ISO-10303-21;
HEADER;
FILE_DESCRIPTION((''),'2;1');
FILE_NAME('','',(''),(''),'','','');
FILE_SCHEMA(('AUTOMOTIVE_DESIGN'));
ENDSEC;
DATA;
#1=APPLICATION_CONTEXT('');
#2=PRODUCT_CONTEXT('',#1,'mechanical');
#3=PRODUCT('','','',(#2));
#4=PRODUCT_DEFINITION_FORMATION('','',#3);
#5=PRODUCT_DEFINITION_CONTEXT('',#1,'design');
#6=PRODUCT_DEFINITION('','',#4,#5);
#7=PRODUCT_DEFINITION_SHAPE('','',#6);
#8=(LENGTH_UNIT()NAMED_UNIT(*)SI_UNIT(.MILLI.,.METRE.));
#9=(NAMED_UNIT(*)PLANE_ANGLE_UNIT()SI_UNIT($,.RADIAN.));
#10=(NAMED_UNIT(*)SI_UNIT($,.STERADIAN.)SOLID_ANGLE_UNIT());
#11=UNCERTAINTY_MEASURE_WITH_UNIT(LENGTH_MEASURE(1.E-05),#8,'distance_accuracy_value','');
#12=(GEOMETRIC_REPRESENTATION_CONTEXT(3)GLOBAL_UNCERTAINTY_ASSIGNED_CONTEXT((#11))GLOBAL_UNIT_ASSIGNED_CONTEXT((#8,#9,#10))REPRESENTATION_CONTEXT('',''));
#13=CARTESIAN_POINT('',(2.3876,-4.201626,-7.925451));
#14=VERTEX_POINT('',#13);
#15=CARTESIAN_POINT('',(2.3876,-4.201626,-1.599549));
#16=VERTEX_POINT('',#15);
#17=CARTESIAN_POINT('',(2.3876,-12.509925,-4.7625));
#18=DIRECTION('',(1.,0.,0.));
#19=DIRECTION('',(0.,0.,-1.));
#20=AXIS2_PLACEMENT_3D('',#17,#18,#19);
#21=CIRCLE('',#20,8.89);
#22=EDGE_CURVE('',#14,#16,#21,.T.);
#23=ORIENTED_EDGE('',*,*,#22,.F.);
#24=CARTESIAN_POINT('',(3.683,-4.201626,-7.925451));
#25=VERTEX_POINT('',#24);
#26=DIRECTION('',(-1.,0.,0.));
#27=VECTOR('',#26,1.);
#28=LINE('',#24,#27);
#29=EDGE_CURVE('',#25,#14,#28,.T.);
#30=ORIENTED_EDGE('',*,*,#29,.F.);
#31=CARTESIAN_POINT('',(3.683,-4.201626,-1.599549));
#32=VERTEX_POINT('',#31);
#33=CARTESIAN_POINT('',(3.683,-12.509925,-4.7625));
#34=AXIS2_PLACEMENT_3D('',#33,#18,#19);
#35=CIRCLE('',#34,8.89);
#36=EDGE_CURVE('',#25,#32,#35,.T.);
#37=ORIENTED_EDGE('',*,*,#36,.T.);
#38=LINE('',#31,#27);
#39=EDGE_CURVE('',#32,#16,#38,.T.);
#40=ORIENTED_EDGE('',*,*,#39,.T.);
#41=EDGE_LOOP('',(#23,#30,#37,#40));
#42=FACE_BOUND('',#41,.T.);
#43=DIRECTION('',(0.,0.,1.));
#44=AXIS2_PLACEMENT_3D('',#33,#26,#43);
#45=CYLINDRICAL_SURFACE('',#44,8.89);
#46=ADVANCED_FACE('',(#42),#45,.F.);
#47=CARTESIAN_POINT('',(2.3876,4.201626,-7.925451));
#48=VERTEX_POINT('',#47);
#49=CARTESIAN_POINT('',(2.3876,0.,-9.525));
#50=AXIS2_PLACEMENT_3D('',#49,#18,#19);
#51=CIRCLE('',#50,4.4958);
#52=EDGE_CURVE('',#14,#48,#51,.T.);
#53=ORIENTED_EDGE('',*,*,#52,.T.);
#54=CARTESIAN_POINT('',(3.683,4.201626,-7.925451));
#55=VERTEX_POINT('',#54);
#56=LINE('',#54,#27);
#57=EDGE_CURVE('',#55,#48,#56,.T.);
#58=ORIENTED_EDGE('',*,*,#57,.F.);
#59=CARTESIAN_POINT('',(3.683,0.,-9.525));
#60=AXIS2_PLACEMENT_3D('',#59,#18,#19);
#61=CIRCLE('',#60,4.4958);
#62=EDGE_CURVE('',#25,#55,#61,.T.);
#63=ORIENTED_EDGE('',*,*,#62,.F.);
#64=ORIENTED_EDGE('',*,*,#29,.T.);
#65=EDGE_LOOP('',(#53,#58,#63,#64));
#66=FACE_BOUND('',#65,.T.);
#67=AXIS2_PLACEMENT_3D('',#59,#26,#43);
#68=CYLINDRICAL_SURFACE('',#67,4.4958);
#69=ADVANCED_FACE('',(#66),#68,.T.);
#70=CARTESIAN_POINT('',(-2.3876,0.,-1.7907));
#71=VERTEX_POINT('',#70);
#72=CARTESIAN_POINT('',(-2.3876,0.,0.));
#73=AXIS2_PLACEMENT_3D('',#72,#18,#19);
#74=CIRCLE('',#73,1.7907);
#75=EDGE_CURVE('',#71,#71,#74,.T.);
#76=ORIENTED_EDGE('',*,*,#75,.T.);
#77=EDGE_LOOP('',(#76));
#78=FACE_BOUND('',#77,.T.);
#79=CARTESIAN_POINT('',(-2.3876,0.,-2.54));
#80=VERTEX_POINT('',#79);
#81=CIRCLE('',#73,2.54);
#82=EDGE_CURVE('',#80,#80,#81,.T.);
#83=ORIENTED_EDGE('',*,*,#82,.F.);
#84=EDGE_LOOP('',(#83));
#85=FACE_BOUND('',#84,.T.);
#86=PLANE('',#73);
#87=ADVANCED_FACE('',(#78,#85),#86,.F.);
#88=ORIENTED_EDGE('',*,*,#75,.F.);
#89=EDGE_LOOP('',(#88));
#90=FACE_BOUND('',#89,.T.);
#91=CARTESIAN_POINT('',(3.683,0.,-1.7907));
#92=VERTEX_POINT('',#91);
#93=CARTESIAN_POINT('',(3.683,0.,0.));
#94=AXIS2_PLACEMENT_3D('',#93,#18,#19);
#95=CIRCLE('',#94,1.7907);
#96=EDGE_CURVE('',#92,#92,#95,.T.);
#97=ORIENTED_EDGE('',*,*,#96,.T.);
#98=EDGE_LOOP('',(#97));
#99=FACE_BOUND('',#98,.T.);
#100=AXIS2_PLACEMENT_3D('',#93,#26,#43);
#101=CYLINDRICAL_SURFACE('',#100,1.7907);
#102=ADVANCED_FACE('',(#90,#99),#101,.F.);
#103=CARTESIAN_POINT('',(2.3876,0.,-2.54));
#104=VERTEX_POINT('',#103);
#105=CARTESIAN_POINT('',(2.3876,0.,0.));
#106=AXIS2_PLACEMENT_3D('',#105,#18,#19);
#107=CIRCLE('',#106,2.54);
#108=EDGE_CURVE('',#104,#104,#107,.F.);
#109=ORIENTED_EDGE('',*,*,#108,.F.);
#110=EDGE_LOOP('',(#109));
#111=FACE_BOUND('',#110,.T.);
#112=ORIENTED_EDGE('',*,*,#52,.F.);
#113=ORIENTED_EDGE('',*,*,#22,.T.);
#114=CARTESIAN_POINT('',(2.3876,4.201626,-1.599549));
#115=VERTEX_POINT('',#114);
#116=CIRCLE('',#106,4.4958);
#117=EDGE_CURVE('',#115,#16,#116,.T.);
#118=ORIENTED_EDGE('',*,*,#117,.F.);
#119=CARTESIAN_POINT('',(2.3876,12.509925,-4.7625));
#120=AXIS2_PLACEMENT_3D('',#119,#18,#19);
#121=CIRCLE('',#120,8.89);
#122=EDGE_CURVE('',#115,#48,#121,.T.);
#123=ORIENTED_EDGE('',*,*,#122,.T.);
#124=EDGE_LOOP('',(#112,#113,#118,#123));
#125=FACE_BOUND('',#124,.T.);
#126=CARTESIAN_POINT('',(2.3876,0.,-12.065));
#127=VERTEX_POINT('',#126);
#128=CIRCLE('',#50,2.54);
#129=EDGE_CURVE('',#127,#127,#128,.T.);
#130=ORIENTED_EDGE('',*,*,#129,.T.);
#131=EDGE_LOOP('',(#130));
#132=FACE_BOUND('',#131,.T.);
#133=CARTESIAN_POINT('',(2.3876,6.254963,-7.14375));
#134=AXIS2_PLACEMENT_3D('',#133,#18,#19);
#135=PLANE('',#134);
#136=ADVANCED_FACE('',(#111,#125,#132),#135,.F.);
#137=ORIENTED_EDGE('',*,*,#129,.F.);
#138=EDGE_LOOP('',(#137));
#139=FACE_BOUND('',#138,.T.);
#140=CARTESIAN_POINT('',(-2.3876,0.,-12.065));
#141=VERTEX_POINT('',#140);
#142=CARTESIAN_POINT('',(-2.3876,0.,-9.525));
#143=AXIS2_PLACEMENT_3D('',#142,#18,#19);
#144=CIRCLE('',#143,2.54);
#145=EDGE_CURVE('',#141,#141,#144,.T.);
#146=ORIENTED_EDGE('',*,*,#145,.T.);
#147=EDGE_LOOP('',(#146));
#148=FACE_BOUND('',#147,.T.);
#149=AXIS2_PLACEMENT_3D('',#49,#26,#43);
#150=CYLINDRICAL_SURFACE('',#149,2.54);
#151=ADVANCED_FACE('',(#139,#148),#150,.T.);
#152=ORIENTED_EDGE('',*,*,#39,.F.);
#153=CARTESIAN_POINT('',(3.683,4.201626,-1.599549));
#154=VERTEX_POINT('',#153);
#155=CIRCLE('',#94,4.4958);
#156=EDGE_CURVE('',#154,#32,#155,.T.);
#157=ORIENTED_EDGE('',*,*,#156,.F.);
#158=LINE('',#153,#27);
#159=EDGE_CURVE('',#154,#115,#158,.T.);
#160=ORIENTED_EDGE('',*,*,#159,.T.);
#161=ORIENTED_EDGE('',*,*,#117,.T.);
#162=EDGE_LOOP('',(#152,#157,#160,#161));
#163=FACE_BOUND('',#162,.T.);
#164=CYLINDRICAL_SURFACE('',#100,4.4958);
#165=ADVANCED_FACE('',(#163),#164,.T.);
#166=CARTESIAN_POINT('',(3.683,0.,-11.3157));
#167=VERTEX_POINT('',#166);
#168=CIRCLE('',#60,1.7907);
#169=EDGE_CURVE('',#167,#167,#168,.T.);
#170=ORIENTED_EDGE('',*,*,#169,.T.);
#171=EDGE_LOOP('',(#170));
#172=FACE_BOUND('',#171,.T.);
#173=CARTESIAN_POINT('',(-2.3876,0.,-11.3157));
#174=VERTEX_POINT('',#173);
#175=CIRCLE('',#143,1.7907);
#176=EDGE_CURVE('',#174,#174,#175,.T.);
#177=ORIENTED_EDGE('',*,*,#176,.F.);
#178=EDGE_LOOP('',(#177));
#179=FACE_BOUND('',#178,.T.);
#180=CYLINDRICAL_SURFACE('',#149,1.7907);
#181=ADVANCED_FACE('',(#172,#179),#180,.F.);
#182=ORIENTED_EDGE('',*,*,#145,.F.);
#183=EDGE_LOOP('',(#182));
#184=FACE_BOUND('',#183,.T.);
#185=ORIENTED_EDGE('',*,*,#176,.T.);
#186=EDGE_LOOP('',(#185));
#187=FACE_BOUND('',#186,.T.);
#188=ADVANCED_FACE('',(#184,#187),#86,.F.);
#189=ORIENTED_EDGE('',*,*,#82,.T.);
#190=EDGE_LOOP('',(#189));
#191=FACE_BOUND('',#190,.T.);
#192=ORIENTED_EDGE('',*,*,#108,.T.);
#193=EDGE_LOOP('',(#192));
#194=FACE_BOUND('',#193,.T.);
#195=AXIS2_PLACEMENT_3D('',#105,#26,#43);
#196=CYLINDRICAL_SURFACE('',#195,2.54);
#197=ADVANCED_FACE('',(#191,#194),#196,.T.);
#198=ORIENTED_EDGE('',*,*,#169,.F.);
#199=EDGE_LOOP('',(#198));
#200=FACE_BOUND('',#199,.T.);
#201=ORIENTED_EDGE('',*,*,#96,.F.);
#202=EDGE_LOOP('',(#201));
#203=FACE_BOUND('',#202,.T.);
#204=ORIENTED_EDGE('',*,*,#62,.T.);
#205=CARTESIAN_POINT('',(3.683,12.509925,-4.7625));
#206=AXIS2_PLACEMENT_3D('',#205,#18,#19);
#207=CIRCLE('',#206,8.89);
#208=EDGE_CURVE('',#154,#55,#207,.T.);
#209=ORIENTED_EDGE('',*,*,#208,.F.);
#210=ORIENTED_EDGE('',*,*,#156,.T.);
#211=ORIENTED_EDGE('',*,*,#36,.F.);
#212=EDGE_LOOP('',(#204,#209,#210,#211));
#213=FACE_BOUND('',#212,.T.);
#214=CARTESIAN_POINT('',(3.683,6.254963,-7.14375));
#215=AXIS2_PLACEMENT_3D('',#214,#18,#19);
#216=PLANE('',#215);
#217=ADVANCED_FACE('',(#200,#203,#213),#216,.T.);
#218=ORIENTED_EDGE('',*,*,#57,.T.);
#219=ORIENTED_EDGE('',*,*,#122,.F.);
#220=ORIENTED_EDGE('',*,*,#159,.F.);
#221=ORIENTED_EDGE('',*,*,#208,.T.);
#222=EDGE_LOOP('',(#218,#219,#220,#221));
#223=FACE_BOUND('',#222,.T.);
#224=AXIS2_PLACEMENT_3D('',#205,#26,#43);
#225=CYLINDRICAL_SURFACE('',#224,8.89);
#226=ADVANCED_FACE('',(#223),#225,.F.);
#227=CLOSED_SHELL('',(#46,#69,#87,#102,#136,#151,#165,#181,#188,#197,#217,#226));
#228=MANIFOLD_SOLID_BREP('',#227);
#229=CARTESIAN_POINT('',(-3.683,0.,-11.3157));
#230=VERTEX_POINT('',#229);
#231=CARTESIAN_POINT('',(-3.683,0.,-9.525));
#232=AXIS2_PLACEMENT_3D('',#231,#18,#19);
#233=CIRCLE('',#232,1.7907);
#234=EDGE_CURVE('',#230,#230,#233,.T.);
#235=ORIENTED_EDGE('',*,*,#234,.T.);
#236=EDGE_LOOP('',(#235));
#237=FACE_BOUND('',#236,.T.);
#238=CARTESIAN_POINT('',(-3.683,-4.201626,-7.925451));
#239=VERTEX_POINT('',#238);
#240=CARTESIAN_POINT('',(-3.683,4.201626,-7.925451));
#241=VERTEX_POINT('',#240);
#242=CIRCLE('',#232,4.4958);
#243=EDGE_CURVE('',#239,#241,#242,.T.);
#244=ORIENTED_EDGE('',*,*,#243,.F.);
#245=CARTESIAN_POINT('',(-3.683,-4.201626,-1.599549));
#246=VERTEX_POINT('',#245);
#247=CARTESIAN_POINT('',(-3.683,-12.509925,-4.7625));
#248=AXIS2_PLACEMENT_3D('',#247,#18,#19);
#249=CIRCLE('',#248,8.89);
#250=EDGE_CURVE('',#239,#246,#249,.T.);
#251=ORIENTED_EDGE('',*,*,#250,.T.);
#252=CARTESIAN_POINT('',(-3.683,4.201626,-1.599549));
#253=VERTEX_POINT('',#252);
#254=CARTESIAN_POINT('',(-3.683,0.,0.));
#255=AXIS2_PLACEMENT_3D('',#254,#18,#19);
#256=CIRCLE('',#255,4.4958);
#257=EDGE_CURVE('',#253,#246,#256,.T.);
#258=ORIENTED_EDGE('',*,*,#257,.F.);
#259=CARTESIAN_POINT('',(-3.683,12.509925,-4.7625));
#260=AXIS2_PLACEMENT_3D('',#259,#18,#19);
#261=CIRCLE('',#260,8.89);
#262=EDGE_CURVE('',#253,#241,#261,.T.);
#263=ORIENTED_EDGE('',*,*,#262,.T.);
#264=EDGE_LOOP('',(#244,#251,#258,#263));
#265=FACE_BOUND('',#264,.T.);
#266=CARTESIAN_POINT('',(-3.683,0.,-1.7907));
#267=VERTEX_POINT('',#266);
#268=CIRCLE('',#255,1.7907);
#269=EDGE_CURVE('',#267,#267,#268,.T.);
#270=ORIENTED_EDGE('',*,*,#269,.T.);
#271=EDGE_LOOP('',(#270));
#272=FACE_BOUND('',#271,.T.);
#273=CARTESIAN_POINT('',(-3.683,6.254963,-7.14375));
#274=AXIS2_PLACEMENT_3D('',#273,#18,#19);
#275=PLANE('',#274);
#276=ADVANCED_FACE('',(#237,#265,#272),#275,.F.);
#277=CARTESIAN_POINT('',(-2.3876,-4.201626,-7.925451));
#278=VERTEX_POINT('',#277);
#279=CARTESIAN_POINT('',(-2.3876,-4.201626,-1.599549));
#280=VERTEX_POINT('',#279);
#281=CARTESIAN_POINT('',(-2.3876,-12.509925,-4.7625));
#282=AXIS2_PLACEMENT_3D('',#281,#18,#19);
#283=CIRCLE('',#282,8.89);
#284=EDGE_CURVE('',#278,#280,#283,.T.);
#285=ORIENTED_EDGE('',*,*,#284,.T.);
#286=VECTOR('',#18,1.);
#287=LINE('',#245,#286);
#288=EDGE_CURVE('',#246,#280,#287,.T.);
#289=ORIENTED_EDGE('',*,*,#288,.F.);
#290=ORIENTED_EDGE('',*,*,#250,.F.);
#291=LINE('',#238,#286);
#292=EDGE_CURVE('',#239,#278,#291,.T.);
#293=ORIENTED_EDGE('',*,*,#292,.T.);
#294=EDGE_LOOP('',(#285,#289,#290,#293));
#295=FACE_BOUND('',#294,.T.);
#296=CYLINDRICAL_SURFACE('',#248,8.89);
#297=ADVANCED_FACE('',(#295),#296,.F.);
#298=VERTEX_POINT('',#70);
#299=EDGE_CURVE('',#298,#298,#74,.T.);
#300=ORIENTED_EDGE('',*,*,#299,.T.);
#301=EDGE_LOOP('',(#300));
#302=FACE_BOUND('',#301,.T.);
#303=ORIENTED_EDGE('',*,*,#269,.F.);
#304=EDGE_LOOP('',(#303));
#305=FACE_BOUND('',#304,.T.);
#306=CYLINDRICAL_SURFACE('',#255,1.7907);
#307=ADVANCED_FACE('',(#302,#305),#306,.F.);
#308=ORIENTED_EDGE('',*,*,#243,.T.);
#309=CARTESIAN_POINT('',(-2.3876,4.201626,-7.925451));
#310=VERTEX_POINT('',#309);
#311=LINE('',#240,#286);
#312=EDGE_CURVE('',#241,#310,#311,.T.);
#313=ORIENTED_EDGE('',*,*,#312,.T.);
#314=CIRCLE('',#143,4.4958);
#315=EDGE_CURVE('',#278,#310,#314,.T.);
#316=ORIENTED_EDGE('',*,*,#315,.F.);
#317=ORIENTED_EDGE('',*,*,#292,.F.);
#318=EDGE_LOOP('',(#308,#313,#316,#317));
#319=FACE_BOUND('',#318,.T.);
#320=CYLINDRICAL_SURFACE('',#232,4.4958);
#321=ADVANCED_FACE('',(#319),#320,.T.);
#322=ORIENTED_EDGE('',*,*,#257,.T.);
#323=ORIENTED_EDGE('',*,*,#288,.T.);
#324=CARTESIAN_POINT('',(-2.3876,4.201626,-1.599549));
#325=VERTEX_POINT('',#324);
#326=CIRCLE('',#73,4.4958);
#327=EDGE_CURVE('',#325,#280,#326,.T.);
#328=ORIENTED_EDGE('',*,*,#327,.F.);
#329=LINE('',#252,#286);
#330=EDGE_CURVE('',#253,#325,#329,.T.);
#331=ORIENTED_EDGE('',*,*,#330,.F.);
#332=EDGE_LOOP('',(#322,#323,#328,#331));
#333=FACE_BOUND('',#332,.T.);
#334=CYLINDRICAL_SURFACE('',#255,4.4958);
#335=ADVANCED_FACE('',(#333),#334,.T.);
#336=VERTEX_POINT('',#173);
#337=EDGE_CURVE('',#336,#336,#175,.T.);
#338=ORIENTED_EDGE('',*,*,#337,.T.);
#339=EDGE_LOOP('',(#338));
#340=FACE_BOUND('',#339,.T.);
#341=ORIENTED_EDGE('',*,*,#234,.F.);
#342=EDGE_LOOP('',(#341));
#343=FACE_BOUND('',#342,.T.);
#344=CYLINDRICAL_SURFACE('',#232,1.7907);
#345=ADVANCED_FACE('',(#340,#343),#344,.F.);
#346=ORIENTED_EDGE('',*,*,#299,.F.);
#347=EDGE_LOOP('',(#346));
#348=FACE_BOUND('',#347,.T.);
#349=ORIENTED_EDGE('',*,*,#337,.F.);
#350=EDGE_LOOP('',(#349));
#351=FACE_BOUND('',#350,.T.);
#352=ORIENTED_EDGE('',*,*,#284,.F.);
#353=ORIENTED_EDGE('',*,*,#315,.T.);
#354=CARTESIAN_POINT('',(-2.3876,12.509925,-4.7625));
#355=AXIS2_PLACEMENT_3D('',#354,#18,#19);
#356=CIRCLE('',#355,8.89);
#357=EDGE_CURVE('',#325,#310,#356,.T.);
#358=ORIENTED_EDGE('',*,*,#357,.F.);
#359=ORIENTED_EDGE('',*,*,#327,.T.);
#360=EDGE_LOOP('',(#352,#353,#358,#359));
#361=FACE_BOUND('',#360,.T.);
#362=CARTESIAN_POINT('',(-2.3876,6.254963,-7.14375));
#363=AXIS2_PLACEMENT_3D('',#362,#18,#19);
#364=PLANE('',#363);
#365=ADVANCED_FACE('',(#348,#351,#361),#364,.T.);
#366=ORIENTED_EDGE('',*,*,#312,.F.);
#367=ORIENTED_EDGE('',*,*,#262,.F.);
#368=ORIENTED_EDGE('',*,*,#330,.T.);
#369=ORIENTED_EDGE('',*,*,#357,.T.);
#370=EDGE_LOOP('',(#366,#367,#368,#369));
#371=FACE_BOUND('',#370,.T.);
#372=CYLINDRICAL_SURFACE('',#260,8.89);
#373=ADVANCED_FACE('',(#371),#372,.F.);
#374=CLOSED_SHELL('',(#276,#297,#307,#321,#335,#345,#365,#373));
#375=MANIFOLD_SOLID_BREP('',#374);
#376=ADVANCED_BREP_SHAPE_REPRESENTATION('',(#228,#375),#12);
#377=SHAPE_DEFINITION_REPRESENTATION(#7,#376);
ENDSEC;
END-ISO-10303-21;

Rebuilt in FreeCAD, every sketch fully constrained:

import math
import FreeCAD as App
import Part
import Sketcher

V = App.Vector
Q = App.Units.Quantity

doc = App.newDocument("Part")
params = doc.addObject("Spreadsheet::Sheet", "Params")
for row, (alias, value) in enumerate([
    ("sketch1_diameter", "0.2 in"),
    ("sketch1_diameter2", "0.141 in"),
    ("pad1_length", "0.188 in"),
    ("sketch2_diameter", "0.2 in"),
    ("sketch2_diameter2", "0.141 in"),
    ("pad2_length", "0.188 in"),
    ("sketch3_radius", "0.35 in"),
    ("sketch3_diameter", "0.141 in"),
    ("sketch3_radius2", "0.177 in"),
    ("pad3_length", "0.051 in"),
    ("sketch4_radius", "0.35 in"),
    ("sketch4_diameter", "0.141 in"),
    ("sketch4_radius2", "0.177 in"),
    ("pad4_length", "0.051 in"),
], start=1):
    params.set(f"A{row}", alias)
    params.set(f"B{row}", "=" + value)
    params.setAlias(f"B{row}", alias)

body = doc.addObject("PartDesign::Body", "Body")

# Sketch on YZ plane
sketch1 = doc.addObject("Sketcher::SketchObject", "Sketch")
body.addObject(sketch1)
sketch1.AttachmentSupport = (doc.YZ_Plane, [""])
sketch1.MapMode = "FlatFace"
sketch1.addGeometry([
    Part.Circle(V(0, 0, 0), V(0, 0, 1), 2.54),
    Part.Circle(V(0, 0, 0), V(0, 0, 1), 1.7907),
], False)
sketch1.addConstraint([
    Sketcher.Constraint("Coincident", 0, 3, -1, 1),
    Sketcher.Constraint("Coincident", 1, 3, -1, 1),
    Sketcher.Constraint("Diameter", 0, Q("0.2 in")),
    Sketcher.Constraint("Diameter", 1, Q("0.141 in")),
])
sketch1.setExpression("Constraints[2]", "Params.sketch1_diameter")
sketch1.setExpression("Constraints[3]", "Params.sketch1_diameter2")
pad1 = doc.addObject("PartDesign::Pad", "Pad")
body.addObject(pad1)
pad1.Profile = sketch1
pad1.setExpression("Length", "Params.pad1_length")
pad1.Midplane = True
body2 = doc.addObject("PartDesign::Body", "Body001")

# Sketch on YZ plane
sketch2 = doc.addObject("Sketcher::SketchObject", "Sketch001")
body2.addObject(sketch2)
sketch2.AttachmentSupport = (doc.getObject("YZ_Plane001"), [""])
sketch2.MapMode = "FlatFace"
sketch2.addGeometry([
    Part.Circle(V(0, -9.525, 0), V(0, 0, 1), 2.54),
    Part.Circle(V(0, -9.525, 0), V(0, 0, 1), 1.7907),
], False)
sketch2.addConstraint([
    Sketcher.Constraint("Coincident", 1, 3, 0, 3),
    Sketcher.Constraint("PointOnObject", 0, 3, -2),
    Sketcher.Constraint("Diameter", 0, Q("0.2 in")),
    Sketcher.Constraint("Diameter", 1, Q("0.141 in")),
    Sketcher.Constraint("DistanceY", 0, 3, -1, 1, Q("0.375 in")),
])
sketch2.setExpression("Constraints[2]", "Params.sketch2_diameter")
sketch2.setExpression("Constraints[3]", "Params.sketch2_diameter2")
pad2 = doc.addObject("PartDesign::Pad", "Pad001")
body2.addObject(pad2)
pad2.Profile = sketch2
pad2.setExpression("Length", "Params.pad2_length")
pad2.Midplane = True
body.AllowCompound = True
doc.recompute()

boolean = doc.addObject("PartDesign::Boolean", "Boolean")
body.addObject(boolean)
boolean.Type = "Fuse"
boolean.addObjects([body2])

# Sketch on YZ plane
sketch3 = doc.addObject("Sketcher::SketchObject", "Sketch002")
body.addObject(sketch3)
sketch3.AttachmentSupport = (doc.YZ_Plane, [""])
sketch3.MapMode = "FlatFace"
sketch3.AttachmentOffset = App.Placement(V(0, 0, 0.094 * 25.4), App.Rotation())
sketch3.addGeometry([
    Part.ArcOfCircle(Part.Circle(V(12.509925, -4.7625, 0), V(0, 0, 1), 8.89), math.radians(159.158285), math.radians(200.841715)),  # 0
    Part.ArcOfCircle(Part.Circle(V(0, 0, 0), V(0, 0, 1), 4.4958), math.radians(-20.841715), math.radians(200.841715)),  # 1
    Part.ArcOfCircle(Part.Circle(V(-12.509925, -4.7625, 0), V(0, 0, 1), 8.89), math.radians(-20.841715), math.radians(20.841715)),  # 2
    Part.ArcOfCircle(Part.Circle(V(0, -9.525, 0), V(0, 0, 1), 4.4958), math.radians(159.158285), math.radians(380.841715)),  # 3
    Part.Circle(V(0, 0, 0), V(0, 0, 1), 1.7907),  # 4
    Part.Circle(V(0, -9.525, 0), V(0, 0, 1), 1.7907),  # 5
], False)
sketch3.addConstraint([
    Sketcher.Constraint("Tangent", 0, 1, 1, 1),
    Sketcher.Constraint("Tangent", 1, 2, 2, 2),
    Sketcher.Constraint("Tangent", 2, 1, 3, 1),
    Sketcher.Constraint("Tangent", 3, 2, 0, 2),
    Sketcher.Constraint("Coincident", 1, 3, -1, 1),
    Sketcher.Constraint("Coincident", 4, 3, -1, 1),
    Sketcher.Constraint("Coincident", 5, 3, 3, 3),
    Sketcher.Constraint("Equal", 0, 2),
    Sketcher.Constraint("Equal", 1, 3),
    Sketcher.Constraint("Equal", 4, 5),
    Sketcher.Constraint("PointOnObject", 3, 3, -2),
    Sketcher.Constraint("Radius", 0, Q("0.35 in")),
    Sketcher.Constraint("Diameter", 4, Q("0.141 in")),
    Sketcher.Constraint("Radius", 1, Q("0.177 in")),
    Sketcher.Constraint("DistanceY", 0, 3, -1, 1, Q("0.1875 in")),
])
sketch3.setExpression("Constraints[11]", "Params.sketch3_radius")
sketch3.setExpression("Constraints[12]", "Params.sketch3_diameter")
sketch3.setExpression("Constraints[13]", "Params.sketch3_radius2")
pad3 = doc.addObject("PartDesign::Pad", "Pad002")
body.addObject(pad3)
pad3.Profile = sketch3
pad3.setExpression("Length", "Params.pad3_length")
body3 = doc.addObject("PartDesign::Body", "Body002")

# Sketch on YZ plane
sketch4 = doc.addObject("Sketcher::SketchObject", "Sketch003")
body3.addObject(sketch4)
sketch4.AttachmentSupport = (doc.getObject("YZ_Plane002"), [""])
sketch4.MapMode = "FlatFace"
sketch4.AttachmentOffset = App.Placement(V(0, 0, -0.094 * 25.4), App.Rotation())
sketch4.addGeometry([
    Part.ArcOfCircle(Part.Circle(V(0, 0, 0), V(0, 0, 1), 4.4958), math.radians(-20.841715), math.radians(200.841715)),  # 0
    Part.ArcOfCircle(Part.Circle(V(-12.509925, -4.7625, 0), V(0, 0, 1), 8.89), math.radians(-20.841715), math.radians(20.841715)),  # 1
    Part.ArcOfCircle(Part.Circle(V(0, -9.525, 0), V(0, 0, 1), 4.4958), math.radians(159.158285), math.radians(380.841715)),  # 2
    Part.ArcOfCircle(Part.Circle(V(12.509925, -4.7625, 0), V(0, 0, 1), 8.89), math.radians(159.158285), math.radians(200.841715)),  # 3
    Part.Circle(V(0, 0, 0), V(0, 0, 1), 1.7907),  # 4
    Part.Circle(V(0, -9.525, 0), V(0, 0, 1), 1.7907),  # 5
], False)
sketch4.addConstraint([
    Sketcher.Constraint("Tangent", 0, 2, 1, 2),
    Sketcher.Constraint("Tangent", 1, 1, 2, 1),
    Sketcher.Constraint("Tangent", 2, 2, 3, 2),
    Sketcher.Constraint("Tangent", 3, 1, 0, 1),
    Sketcher.Constraint("Coincident", 0, 3, -1, 1),
    Sketcher.Constraint("Coincident", 4, 3, -1, 1),
    Sketcher.Constraint("Coincident", 5, 3, 2, 3),
    Sketcher.Constraint("Equal", 0, 2),
    Sketcher.Constraint("Equal", 1, 3),
    Sketcher.Constraint("Equal", 4, 5),
    Sketcher.Constraint("PointOnObject", 2, 3, -2),
    Sketcher.Constraint("Radius", 1, Q("0.35 in")),
    Sketcher.Constraint("Diameter", 4, Q("0.141 in")),
    Sketcher.Constraint("Radius", 0, Q("0.177 in")),
    Sketcher.Constraint("DistanceY", 1, 3, -1, 1, Q("0.1875 in")),
])
sketch4.setExpression("Constraints[11]", "Params.sketch4_radius")
sketch4.setExpression("Constraints[12]", "Params.sketch4_diameter")
sketch4.setExpression("Constraints[13]", "Params.sketch4_radius2")
pad4 = doc.addObject("PartDesign::Pad", "Pad003")
body3.addObject(pad4)
pad4.Profile = sketch4
pad4.setExpression("Length", "Params.pad4_length")
pad4.Reversed = True

doc.recompute()
